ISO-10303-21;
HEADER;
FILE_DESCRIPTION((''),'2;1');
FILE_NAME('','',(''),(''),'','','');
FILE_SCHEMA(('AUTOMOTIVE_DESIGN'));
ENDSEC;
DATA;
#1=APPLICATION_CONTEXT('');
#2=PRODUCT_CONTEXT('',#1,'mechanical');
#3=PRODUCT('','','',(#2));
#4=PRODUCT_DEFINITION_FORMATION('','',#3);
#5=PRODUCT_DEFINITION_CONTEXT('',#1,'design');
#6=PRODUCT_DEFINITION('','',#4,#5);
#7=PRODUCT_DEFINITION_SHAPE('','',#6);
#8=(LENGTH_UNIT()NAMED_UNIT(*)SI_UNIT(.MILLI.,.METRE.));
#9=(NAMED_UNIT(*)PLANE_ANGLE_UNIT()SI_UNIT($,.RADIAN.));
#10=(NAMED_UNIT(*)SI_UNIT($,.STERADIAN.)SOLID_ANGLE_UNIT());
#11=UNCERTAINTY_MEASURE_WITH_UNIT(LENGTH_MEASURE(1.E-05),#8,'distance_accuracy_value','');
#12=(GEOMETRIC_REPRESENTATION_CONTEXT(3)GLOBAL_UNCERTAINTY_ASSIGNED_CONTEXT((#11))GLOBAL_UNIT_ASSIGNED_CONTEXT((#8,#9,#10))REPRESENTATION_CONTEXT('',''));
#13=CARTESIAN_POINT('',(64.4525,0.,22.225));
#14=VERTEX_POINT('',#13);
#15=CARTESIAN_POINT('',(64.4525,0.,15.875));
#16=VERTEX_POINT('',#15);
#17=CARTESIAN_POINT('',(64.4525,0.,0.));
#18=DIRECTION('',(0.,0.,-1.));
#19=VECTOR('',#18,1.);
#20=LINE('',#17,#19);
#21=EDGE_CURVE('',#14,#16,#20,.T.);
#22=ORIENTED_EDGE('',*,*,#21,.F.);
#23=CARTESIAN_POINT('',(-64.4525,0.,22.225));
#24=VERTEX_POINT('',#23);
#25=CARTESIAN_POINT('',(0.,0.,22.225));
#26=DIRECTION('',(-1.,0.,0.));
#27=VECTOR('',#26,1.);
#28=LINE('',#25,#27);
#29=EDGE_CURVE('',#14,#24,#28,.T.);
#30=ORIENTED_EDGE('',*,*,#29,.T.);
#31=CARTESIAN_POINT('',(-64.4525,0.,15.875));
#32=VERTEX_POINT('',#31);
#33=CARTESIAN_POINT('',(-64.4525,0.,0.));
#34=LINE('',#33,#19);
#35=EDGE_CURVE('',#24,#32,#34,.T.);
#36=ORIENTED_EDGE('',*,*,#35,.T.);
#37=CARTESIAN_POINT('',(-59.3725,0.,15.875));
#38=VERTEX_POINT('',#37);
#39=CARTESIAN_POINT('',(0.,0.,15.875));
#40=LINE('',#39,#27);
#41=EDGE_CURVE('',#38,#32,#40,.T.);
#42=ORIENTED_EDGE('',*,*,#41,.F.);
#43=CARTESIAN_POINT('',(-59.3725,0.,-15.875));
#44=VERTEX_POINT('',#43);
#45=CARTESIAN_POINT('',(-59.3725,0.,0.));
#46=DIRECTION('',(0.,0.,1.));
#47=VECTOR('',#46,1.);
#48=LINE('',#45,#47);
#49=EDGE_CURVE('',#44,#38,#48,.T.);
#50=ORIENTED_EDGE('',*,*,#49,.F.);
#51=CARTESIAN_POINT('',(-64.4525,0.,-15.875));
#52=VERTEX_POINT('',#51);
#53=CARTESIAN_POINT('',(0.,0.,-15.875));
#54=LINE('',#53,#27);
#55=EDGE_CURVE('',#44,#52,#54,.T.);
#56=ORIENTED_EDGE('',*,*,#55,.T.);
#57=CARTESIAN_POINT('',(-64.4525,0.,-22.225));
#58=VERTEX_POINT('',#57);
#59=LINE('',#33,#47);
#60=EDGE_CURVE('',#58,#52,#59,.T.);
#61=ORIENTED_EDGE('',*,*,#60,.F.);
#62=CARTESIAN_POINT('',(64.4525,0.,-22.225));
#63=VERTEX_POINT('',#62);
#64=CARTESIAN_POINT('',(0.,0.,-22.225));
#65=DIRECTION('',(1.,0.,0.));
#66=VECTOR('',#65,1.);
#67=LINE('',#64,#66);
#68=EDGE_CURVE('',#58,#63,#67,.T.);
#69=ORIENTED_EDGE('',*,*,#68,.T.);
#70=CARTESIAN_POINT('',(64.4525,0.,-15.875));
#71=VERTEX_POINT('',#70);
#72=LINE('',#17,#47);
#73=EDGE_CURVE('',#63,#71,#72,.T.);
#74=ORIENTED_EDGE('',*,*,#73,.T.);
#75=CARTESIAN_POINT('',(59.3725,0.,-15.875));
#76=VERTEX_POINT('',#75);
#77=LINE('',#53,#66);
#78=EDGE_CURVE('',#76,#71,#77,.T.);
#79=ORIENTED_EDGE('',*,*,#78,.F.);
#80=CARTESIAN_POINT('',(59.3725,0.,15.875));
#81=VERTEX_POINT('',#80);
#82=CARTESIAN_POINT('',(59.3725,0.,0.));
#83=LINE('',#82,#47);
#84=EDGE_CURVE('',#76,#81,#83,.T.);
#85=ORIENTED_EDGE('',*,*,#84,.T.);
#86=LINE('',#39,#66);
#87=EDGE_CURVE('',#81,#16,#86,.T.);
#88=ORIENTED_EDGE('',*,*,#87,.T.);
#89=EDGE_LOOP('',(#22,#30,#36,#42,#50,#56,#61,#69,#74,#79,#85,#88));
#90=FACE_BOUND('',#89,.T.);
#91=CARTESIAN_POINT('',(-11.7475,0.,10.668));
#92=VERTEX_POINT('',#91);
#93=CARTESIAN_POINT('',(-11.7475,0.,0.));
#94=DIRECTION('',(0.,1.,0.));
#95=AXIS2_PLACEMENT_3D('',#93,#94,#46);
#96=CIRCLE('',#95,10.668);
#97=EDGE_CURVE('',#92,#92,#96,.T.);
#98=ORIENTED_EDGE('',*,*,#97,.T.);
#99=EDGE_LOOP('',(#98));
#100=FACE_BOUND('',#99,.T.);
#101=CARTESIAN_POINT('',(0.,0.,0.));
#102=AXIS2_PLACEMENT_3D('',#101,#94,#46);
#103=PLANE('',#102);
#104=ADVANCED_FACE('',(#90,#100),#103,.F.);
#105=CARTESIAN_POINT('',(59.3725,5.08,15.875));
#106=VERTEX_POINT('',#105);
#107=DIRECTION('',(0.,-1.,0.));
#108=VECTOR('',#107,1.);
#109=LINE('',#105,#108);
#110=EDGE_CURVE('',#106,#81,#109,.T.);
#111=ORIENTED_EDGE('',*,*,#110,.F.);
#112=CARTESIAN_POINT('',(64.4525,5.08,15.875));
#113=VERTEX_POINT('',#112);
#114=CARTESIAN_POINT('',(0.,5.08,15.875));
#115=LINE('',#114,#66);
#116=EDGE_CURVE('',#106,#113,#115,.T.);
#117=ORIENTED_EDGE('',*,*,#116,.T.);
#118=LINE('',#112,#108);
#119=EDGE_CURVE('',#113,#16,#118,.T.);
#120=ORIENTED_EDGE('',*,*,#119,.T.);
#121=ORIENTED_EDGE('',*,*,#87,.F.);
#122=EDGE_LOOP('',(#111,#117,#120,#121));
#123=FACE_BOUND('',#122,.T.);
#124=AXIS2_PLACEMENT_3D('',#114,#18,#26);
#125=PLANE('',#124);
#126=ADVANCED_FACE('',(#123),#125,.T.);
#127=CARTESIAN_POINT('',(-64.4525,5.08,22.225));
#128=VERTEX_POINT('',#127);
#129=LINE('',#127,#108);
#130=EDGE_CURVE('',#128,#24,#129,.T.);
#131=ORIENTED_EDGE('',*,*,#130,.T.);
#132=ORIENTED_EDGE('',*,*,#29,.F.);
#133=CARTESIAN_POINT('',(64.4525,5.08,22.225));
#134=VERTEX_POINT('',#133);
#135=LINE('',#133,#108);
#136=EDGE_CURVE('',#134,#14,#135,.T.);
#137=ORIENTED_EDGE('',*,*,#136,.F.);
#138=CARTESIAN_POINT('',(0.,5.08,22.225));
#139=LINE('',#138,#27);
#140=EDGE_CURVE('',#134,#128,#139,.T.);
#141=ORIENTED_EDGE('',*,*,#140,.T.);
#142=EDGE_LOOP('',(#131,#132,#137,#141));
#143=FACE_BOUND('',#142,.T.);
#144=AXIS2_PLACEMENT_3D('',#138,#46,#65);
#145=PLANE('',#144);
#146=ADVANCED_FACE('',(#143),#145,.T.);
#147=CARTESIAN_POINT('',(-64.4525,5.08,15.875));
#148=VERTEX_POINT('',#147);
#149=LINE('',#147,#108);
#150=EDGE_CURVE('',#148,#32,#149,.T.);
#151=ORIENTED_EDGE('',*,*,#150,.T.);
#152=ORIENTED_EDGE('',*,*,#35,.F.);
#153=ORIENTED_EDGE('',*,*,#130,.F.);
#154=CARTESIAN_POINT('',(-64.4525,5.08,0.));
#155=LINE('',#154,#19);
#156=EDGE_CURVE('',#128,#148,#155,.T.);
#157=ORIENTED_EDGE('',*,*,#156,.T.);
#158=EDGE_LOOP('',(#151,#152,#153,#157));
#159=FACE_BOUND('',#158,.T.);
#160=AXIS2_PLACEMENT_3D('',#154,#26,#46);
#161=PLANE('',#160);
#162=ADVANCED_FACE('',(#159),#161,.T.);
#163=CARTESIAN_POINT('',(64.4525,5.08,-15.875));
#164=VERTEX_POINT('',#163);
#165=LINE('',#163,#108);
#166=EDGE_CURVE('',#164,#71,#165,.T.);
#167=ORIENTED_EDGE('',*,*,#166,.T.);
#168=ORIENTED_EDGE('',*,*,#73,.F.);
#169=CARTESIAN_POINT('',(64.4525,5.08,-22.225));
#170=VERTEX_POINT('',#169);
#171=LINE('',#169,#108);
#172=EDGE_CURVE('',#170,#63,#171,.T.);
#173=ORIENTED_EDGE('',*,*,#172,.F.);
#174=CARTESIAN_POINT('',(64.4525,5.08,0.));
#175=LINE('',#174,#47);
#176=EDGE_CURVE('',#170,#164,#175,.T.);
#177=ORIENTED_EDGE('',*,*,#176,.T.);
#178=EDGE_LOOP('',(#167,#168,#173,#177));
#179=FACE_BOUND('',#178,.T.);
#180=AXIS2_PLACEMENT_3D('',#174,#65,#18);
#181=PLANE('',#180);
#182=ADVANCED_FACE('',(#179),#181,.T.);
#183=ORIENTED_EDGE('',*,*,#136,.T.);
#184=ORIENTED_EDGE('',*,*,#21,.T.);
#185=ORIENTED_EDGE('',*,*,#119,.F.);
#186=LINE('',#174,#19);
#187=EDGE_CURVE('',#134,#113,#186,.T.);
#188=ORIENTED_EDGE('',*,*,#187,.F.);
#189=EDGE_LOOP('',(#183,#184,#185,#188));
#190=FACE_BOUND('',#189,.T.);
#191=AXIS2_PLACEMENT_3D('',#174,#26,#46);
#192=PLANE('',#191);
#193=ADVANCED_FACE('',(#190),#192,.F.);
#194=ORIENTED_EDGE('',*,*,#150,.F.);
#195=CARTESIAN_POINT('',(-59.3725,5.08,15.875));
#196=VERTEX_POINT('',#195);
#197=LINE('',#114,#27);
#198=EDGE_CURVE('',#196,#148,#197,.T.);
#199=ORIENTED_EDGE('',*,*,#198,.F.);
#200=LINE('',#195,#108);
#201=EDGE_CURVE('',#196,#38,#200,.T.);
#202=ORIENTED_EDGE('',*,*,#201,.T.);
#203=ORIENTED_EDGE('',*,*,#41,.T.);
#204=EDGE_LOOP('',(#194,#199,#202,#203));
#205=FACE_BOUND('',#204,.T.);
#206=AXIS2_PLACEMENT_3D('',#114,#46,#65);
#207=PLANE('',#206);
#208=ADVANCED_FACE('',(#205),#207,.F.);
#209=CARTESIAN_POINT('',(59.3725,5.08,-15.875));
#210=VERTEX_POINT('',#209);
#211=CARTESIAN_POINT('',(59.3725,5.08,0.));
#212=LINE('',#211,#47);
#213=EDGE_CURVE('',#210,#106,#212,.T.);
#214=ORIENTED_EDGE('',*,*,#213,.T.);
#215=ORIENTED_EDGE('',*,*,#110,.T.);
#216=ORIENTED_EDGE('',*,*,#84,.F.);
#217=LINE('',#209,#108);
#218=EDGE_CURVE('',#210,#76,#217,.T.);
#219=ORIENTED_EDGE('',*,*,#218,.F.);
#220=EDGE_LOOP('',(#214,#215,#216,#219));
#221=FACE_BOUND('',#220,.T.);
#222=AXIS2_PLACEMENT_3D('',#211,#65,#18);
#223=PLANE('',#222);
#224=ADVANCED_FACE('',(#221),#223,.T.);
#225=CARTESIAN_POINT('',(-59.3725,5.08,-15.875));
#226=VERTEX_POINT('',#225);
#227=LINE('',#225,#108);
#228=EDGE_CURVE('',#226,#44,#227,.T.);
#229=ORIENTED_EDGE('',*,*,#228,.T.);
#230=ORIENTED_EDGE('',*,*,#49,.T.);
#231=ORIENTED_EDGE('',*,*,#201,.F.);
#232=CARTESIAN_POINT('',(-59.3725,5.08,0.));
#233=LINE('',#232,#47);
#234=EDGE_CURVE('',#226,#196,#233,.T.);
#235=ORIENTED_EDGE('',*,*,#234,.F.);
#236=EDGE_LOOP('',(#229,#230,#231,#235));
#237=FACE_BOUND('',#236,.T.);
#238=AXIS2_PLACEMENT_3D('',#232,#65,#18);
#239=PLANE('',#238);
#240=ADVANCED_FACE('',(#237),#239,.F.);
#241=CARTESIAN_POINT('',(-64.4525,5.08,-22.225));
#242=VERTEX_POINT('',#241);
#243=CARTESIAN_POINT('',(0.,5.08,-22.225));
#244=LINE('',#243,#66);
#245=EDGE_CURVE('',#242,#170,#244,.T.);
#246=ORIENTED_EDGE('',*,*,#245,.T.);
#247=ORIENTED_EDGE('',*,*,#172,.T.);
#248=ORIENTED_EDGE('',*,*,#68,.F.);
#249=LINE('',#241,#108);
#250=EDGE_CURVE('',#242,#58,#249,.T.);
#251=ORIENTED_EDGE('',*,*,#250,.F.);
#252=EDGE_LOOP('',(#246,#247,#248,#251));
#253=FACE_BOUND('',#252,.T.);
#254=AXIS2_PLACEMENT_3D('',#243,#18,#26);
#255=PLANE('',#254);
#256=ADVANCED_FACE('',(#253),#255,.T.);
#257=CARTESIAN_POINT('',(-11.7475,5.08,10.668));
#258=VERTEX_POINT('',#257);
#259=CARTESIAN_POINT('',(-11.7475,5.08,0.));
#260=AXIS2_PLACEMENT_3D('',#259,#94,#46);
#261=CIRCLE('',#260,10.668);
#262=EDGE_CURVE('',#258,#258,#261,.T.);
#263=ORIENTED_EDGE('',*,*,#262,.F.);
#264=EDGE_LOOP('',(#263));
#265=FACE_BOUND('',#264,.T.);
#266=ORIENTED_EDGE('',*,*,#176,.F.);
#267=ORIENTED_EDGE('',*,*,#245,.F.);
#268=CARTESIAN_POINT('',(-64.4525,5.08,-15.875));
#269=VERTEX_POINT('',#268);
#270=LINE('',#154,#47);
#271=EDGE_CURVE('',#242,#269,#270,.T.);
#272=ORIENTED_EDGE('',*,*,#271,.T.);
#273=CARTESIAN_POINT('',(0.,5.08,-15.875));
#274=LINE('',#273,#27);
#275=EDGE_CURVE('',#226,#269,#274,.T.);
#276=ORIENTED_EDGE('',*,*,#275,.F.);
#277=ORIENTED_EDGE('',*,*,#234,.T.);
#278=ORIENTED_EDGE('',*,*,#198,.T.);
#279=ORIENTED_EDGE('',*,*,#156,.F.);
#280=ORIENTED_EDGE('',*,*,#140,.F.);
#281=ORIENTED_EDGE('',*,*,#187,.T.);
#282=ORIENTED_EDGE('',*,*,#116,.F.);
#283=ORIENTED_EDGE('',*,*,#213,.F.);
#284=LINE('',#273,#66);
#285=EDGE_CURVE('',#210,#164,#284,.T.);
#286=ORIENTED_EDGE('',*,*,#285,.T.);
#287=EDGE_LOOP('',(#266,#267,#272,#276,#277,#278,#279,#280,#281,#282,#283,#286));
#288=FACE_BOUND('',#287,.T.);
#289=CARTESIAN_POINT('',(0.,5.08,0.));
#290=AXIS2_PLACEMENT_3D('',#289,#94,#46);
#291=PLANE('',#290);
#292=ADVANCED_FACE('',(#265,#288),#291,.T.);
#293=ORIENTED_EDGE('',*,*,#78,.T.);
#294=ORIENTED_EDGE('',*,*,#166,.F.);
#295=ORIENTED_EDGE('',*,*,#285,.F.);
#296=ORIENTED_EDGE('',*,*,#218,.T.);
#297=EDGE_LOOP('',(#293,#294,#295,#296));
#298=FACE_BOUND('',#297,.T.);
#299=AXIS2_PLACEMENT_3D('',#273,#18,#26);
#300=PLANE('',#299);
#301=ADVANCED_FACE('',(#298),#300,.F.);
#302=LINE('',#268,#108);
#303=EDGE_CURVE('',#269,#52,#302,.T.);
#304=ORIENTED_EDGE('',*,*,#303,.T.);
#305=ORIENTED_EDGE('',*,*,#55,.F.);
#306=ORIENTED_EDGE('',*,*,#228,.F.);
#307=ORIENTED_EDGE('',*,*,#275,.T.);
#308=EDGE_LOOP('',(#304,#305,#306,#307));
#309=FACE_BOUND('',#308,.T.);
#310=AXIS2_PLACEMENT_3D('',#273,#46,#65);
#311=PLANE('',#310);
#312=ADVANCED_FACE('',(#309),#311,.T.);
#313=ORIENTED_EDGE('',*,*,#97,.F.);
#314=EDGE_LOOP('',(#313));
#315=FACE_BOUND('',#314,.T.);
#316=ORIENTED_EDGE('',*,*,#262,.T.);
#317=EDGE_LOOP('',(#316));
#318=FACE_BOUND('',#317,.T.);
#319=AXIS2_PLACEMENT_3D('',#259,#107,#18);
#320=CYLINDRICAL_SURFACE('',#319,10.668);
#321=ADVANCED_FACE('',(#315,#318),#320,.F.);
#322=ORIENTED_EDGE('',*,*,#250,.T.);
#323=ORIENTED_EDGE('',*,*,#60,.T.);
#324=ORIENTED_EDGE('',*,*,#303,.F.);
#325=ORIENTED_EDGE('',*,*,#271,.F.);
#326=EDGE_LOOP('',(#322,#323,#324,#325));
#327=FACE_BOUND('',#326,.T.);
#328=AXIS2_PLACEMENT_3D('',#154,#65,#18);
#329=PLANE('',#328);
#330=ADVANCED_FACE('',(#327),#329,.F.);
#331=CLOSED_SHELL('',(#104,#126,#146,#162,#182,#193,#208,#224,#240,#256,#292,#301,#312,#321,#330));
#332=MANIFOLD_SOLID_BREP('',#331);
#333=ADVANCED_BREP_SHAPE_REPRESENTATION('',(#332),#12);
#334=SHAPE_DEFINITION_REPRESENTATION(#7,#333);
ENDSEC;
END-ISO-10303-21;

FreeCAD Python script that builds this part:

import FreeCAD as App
import Part
import Sketcher
from FreeCAD import Vector
Q = App.Units.Quantity


def add_polygon(sketch, points):
    """Adds a closed chain of lines whose ends are joined by coincident constraints."""
    first, n = sketch.GeometryCount, len(points)
    for a, b in zip(points, points[1:] + points[:1]):
        sketch.addGeometry(Part.LineSegment(App.Vector(*a, 0), App.Vector(*b, 0)), False)
    for i in range(n):
        sketch.addConstraint(Sketcher.Constraint("Coincident", first + i, 2, first + (i + 1) % n, 1))

doc = App.newDocument("Part")
params = doc.addObject("Spreadsheet::Sheet", "Params")
for row, (alias, value) in enumerate([
    ("sketch1_diameter", "0.84 in"),
    ("sketch1_width", "0.2 in"),
    ("sketch1_height", "0.25 in"),
    ("sketch1_height2", "1.25 in"),
    ("sketch1_width2", "5.075 in"),
    ("pad1_length", "0.2 in"),
], start=1):
    params.set(f"A{row}", alias)
    params.set(f"B{row}", "=" + value)
    params.setAlias(f"B{row}", alias)

body = doc.addObject("PartDesign::Body", "Body")

# Sketch on XZ plane
sketch1 = body.newObject("Sketcher::SketchObject", "Sketch")
sketch1.AttachmentSupport = (doc.getObject("XZ_Plane"), [""])
sketch1.MapMode = "FlatFace"
add_polygon(sketch1, [(-64, 16), (-64, 22), (64, 22), (64, 16), (59, 16), (59, -16), (64, -16), (64, -22), (-64, -22), (-64, -16), (-59, -16), (-59, 16)])  # lines 0-11
sketch1.addGeometry(Part.Circle(Vector(-12, 0, 0), Vector(0, 0, 1), 11), False)  # 12
sketch1.addConstraint(Sketcher.Constraint("Vertical", 0))
sketch1.addConstraint(Sketcher.Constraint("Horizontal", 1))
sketch1.addConstraint(Sketcher.Constraint("Vertical", 2))
sketch1.addConstraint(Sketcher.Constraint("Horizontal", 3))
sketch1.addConstraint(Sketcher.Constraint("Vertical", 4))
sketch1.addConstraint(Sketcher.Constraint("Horizontal", 5))
sketch1.addConstraint(Sketcher.Constraint("Vertical", 6))
sketch1.addConstraint(Sketcher.Constraint("Horizontal", 7))
sketch1.addConstraint(Sketcher.Constraint("Vertical", 8))
sketch1.addConstraint(Sketcher.Constraint("Horizontal", 9))
sketch1.addConstraint(Sketcher.Constraint("Vertical", 10))
sketch1.addConstraint(Sketcher.Constraint("Horizontal", 11))
sketch1.addConstraint(Sketcher.Constraint("Symmetric", 0, 2, 6, 2, -1, 1))
sketch1.addConstraint(Sketcher.Constraint("Symmetric", 2, 2, 8, 2, -1, 1))
sketch1.addConstraint(Sketcher.Constraint("Symmetric", 4, 2, 10, 2, -1, 1))
sketch1.addConstraint(Sketcher.Constraint("Symmetric", 5, 2, 8, 2, -2))
sketch1.addConstraint(Sketcher.Constraint("PointOnObject", 12, 3, -1))
sketch1.addConstraint(Sketcher.Constraint("Diameter", 12, Q("0.84 in")))
sketch1.addConstraint(Sketcher.Constraint("DistanceX", 3, 2, 3, 1, Q("0.2 in")))
sketch1.addConstraint(Sketcher.Constraint("DistanceX", 12, 3, 1, 2, Q("3 in")))
sketch1.addConstraint(Sketcher.Constraint("DistanceY", 0, 1, 0, 2, Q("0.25 in")))
sketch1.addConstraint(Sketcher.Constraint("DistanceY", 4, 2, 4, 1, Q("1.25 in")))
sketch1.addConstraint(Sketcher.Constraint("DistanceX", 1, 1, 1, 2, Q("5.075 in")))
sketch1.setExpression("Constraints[29]", "Params.sketch1_diameter")
sketch1.setExpression("Constraints[30]", "Params.sketch1_width")
sketch1.setExpression("Constraints[32]", "Params.sketch1_height")
sketch1.setExpression("Constraints[33]", "Params.sketch1_height2")
sketch1.setExpression("Constraints[34]", "Params.sketch1_width2")
pad1 = body.newObject("PartDesign::Pad", "Pad")
pad1.Profile = sketch1
pad1.setExpression("Length", "Params.pad1_length")
pad1.Reversed = True

doc.recompute()
